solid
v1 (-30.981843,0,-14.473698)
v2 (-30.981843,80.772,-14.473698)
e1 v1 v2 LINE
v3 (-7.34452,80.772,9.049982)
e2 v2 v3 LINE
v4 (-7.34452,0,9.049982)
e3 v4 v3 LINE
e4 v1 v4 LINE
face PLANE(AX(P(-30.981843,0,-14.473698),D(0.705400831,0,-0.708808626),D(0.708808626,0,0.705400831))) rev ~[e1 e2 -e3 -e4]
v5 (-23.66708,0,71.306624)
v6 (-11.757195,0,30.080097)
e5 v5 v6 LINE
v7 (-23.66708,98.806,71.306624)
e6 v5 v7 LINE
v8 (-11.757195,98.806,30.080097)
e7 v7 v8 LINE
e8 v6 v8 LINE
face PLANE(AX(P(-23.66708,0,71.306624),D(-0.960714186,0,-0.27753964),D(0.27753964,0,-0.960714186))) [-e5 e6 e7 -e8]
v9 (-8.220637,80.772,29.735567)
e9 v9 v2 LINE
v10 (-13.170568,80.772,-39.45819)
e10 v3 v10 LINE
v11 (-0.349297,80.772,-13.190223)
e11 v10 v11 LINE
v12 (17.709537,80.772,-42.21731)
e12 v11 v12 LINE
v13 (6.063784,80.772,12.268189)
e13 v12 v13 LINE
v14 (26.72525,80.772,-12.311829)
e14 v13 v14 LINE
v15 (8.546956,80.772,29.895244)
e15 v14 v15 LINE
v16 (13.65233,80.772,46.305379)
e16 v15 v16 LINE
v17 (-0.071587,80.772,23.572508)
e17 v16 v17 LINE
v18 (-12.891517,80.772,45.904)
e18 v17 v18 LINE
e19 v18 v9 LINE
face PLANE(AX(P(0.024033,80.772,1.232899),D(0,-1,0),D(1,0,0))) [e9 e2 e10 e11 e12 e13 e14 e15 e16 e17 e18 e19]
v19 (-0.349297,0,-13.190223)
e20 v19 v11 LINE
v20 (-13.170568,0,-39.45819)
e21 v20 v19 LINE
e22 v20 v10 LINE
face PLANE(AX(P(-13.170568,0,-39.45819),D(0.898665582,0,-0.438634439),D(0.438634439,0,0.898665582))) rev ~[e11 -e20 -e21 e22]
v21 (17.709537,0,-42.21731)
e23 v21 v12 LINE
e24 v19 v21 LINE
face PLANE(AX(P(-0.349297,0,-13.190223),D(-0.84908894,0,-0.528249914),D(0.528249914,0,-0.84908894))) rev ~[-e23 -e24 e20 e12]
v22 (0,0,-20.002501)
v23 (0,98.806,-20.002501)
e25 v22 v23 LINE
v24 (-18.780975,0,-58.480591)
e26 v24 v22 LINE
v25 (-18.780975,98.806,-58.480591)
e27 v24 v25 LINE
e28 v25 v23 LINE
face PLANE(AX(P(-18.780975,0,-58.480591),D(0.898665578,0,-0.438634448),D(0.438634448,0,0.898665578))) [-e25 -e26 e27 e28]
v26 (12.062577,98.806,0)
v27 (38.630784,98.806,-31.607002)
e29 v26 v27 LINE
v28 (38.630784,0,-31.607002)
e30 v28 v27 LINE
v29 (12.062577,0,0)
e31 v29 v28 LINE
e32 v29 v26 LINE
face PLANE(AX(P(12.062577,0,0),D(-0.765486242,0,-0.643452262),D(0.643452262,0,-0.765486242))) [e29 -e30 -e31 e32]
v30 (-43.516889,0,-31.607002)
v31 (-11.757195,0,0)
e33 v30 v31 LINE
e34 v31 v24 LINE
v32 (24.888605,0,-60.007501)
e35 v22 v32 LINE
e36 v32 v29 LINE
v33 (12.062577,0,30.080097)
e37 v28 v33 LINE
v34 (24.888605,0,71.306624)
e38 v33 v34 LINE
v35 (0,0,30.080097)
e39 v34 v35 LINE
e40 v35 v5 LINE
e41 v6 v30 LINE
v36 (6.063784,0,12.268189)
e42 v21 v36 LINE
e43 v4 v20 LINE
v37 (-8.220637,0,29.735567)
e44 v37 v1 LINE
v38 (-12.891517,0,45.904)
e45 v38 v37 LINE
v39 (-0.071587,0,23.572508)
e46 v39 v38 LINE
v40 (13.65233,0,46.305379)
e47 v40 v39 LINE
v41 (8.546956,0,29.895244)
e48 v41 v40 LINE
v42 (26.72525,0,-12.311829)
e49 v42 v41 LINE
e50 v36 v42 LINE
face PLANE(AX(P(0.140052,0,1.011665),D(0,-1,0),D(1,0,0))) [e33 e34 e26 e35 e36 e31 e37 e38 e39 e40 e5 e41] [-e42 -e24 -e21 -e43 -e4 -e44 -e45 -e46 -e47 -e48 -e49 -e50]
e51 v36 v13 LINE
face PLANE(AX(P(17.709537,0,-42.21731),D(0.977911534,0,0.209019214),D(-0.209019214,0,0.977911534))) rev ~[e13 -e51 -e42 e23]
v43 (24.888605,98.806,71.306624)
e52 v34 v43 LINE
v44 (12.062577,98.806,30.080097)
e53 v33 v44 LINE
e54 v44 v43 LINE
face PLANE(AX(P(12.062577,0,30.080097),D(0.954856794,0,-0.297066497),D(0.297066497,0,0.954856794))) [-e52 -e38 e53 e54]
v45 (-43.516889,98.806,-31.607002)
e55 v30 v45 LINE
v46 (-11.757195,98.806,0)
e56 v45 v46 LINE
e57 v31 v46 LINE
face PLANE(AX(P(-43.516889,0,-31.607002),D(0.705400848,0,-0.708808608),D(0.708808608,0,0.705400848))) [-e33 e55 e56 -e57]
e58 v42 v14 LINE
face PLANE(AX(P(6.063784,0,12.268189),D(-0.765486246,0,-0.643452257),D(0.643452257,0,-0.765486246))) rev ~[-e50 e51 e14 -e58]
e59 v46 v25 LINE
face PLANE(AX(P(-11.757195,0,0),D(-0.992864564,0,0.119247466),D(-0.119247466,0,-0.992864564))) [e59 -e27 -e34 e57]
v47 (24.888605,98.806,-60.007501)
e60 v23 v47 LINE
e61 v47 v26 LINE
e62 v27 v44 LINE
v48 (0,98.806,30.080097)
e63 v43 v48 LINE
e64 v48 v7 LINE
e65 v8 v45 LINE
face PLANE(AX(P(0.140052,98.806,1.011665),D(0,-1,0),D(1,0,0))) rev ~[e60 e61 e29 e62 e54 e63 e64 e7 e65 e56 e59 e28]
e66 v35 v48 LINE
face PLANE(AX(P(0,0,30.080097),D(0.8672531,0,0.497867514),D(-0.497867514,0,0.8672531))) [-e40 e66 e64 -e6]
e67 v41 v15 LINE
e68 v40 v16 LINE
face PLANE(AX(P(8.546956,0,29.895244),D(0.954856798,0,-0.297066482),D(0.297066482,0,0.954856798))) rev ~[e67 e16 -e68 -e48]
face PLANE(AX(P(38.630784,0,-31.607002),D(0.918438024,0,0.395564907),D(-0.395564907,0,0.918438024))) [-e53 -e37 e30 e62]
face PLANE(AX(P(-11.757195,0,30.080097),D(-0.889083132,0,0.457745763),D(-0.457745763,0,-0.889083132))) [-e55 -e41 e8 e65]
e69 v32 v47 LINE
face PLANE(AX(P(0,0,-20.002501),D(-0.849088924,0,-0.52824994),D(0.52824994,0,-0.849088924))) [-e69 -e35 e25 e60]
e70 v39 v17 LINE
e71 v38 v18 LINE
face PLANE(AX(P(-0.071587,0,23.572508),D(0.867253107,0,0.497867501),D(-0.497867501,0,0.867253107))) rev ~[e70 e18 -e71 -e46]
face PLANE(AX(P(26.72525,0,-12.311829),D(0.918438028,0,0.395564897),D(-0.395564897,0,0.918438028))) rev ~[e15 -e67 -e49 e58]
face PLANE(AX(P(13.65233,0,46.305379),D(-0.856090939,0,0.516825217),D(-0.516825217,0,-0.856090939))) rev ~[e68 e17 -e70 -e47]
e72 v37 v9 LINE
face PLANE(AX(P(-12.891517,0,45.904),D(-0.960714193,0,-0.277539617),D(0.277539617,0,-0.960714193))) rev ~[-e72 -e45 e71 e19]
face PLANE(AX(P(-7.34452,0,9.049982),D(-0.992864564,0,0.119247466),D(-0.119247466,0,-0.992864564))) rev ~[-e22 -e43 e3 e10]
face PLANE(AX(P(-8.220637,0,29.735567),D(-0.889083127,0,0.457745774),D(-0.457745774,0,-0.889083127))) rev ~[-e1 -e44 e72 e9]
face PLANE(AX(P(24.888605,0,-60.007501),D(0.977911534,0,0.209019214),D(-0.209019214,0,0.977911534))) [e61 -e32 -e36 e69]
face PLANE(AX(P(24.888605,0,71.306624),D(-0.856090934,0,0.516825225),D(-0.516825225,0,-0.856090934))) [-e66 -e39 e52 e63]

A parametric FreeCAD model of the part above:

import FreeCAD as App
import Part
import Sketcher
from FreeCAD import Vector
Q = App.Units.Quantity

doc = App.newDocument("Part")
body = doc.addObject("PartDesign::Body", "Body")

# Sketch on XZ plane
sketch1 = body.newObject("Sketcher::SketchObject", "Sketch")
sketch1.AttachmentSupport = (doc.getObject("XZ_Plane"), [""])
sketch1.MapMode = "FlatFace"
sketch1.addGeometry([
    Part.LineSegment(Vector(0, -20, 0), Vector(25, -60, 0)),  # 0
    Part.LineSegment(Vector(25, -60, 0), Vector(12, 0, 0)),  # 1
    Part.LineSegment(Vector(12, 0, 0), Vector(39, -32, 0)),  # 2
    Part.LineSegment(Vector(39, -32, 0), Vector(12, 30, 0)),  # 3
    Part.LineSegment(Vector(12, 30, 0), Vector(25, 71, 0)),  # 4
    Part.LineSegment(Vector(25, 71, 0), Vector(0, 30, 0)),  # 5
    Part.LineSegment(Vector(0, 30, 0), Vector(-24, 71, 0)),  # 6
    Part.LineSegment(Vector(-24, 71, 0), Vector(-12, 30, 0)),  # 7
    Part.LineSegment(Vector(-12, 30, 0), Vector(-44, -32, 0)),  # 8
    Part.LineSegment(Vector(-44, -32, 0), Vector(-12, 0, 0)),  # 9
    Part.LineSegment(Vector(-12, 0, 0), Vector(-19, -58, 0)),  # 10
    Part.LineSegment(Vector(-19, -58, 0), Vector(0, -20, 0)),  # 11
], False)
sketch1.addConstraint([
    Sketcher.Constraint("Coincident", 0, 2, 1, 1),
    Sketcher.Constraint("Coincident", 1, 2, 2, 1),
    Sketcher.Constraint("Coincident", 2, 2, 3, 1),
    Sketcher.Constraint("Coincident", 3, 2, 4, 1),
    Sketcher.Constraint("Coincident", 4, 2, 5, 1),
    Sketcher.Constraint("Coincident", 5, 2, 6, 1),
    Sketcher.Constraint("Coincident", 6, 2, 7, 1),
    Sketcher.Constraint("Coincident", 7, 2, 8, 1),
    Sketcher.Constraint("Coincident", 8, 2, 9, 1),
    Sketcher.Constraint("Coincident", 9, 2, 10, 1),
    Sketcher.Constraint("Coincident", 10, 2, 11, 1),
    Sketcher.Constraint("Coincident", 11, 2, 0, 1),
    Sketcher.Constraint("PointOnObject", 1, 2, -1),
    Sketcher.Constraint("PointOnObject", 5, 2, -2),
    Sketcher.Constraint("PointOnObject", 9, 2, -1),
    Sketcher.Constraint("PointOnObject", 11, 2, -2),
    Sketcher.Constraint("Horizontal", 3, 2, 5, 2),
    Sketcher.Constraint("Horizontal", 4, 2, 6, 2),
    Sketcher.Constraint("Horizontal", 5, 2, 7, 2),
    Sketcher.Constraint("Horizontal", 2, 2, 8, 2),
    Sketcher.Constraint("Vertical", 1, 2, 3, 2),
    Sketcher.Constraint("Vertical", 0, 2, 4, 2),
    Sketcher.Constraint("Vertical", 7, 2, 9, 2),
    Sketcher.Constraint("DistanceY", 0, 2, -1, 1, Q("2.3625 in")),
    Sketcher.Constraint("DistanceY", 11, 2, -1, 1, Q("0.7875 in")),
    Sketcher.Constraint("Distance", 2, Q("41.290098 mm")),
    Sketcher.Constraint("DistanceY", 0, 2, 2, 2, Q("28.400499 mm")),
    Sketcher.Constraint("DistanceY", 2, 2, 3, 2, Q("61.687099 mm")),
    Sketcher.Constraint("DistanceX", 7, 2, 4, 2, Q("36.6458 mm")),
    Sketcher.Constraint("Distance", 9, Q("44.807151 mm")),
    Sketcher.Constraint("DistanceX", 6, 2, -1, 1, Q("23.66708 mm")),
    Sketcher.Constraint("DistanceX", 8, 2, -1, 1, Q("43.516889 mm")),
    Sketcher.Constraint("DistanceY", 10, 2, -1, 1, Q("58.480591 mm")),
    Sketcher.Constraint("DistanceX", 0, 2, 2, 2, Q("13.742179 mm")),
    Sketcher.Constraint("DistanceX", 10, 2, 0, 2, Q("43.66958 mm")),
    Sketcher.Constraint("Distance", 4, Q("43.175613 mm")),
])
pad1 = body.newObject("PartDesign::Pad", "Pad")
pad1.Profile = sketch1
pad1.Length = Q("3.89 in")
pad1.Reversed = True

# Sketch on XZ plane
sketch2 = body.newObject("Sketcher::SketchObject", "Sketch001")
sketch2.AttachmentSupport = (doc.getObject("XZ_Plane"), [""])
sketch2.MapMode = "FlatFace"
sketch2.addGeometry([
    Part.LineSegment(Vector(9, 30, 0), Vector(14, 46, 0)),  # 0
    Part.LineSegment(Vector(14, 46, 0), Vector(0, 24, 0)),  # 1
    Part.LineSegment(Vector(0, 24, 0), Vector(-13, 46, 0)),  # 2
    Part.LineSegment(Vector(-13, 46, 0), Vector(-8, 30, 0)),  # 3
    Part.LineSegment(Vector(-8, 30, 0), Vector(-31, -14, 0)),  # 4
    Part.LineSegment(Vector(-31, -14, 0), Vector(-7, 9, 0)),  # 5
    Part.LineSegment(Vector(-7, 9, 0), Vector(-13, -39, 0)),  # 6
    Part.LineSegment(Vector(-13, -39, 0), Vector(0, -13, 0)),  # 7
    Part.LineSegment(Vector(0, -13, 0), Vector(18, -42, 0)),  # 8
    Part.LineSegment(Vector(18, -42, 0), Vector(6, 12, 0)),  # 9
    Part.LineSegment(Vector(6, 12, 0), Vector(27, -12, 0)),  # 10
    Part.LineSegment(Vector(27, -12, 0), Vector(9, 30, 0)),  # 11
], False)
sketch2.addConstraint([
    Sketcher.Constraint("Coincident", 0, 2, 1, 1),
    Sketcher.Constraint("Coincident", 1, 2, 2, 1),
    Sketcher.Constraint("Coincident", 2, 2, 3, 1),
    Sketcher.Constraint("Coincident", 3, 2, 4, 1),
    Sketcher.Constraint("Coincident", 4, 2, 5, 1),
    Sketcher.Constraint("Coincident", 5, 2, 6, 1),
    Sketcher.Constraint("Coincident", 6, 2, 7, 1),
    Sketcher.Constraint("Coincident", 7, 2, 8, 1),
    Sketcher.Constraint("Coincident", 8, 2, 9, 1),
    Sketcher.Constraint("Coincident", 9, 2, 10, 1),
    Sketcher.Constraint("Coincident", 10, 2, 11, 1),
    Sketcher.Constraint("Coincident", 11, 2, 0, 1),
    Sketcher.Constraint("DistanceY", 7, 2, -1, 1, Q("0.5193001 in")),
    Sketcher.Constraint("DistanceY", -1, 1, 2, 2, Q("45.904 mm")),
    Sketcher.Constraint("DistanceY", 4, 2, -1, 1, Q("14.473698 mm")),
    Sketcher.Constraint("Distance", 1, Q("26.554271 mm")),
    Sketcher.Constraint("Distance", 5, Q("33.347962 mm")),
    Sketcher.Constraint("Distance", 7, Q("29.229969 mm")),
    Sketcher.Constraint("DistanceX", -1, 1, 0, 2, Q("13.65233 mm")),
    Sketcher.Constraint("DistanceY", -1, 1, 0, 2, Q("46.305379 mm")),
    Sketcher.Constraint("DistanceX", 5, 2, -1, 1, Q("7.34452 mm")),
    Sketcher.Constraint("DistanceY", 6, 2, -1, 1, Q("39.45819 mm")),
    Sketcher.Constraint("DistanceY", 8, 2, -1, 1, Q("42.21731 mm")),
    Sketcher.Constraint("DistanceY", -1, 1, 9, 2, Q("12.268189 mm")),
    Sketcher.Constraint("DistanceX", -1, 1, 10, 2, Q("26.72525 mm")),
    Sketcher.Constraint("DistanceY", 10, 2, -1, 1, Q("12.311829 mm")),
    Sketcher.Constraint("DistanceY", 1, 2, 0, 2, Q("22.732871 mm")),
    Sketcher.Constraint("DistanceX", 2, 2, 1, 2, Q("12.81993 mm")),
    Sketcher.Constraint("DistanceX", 3, 2, 1, 2, Q("8.14905 mm")),
    Sketcher.Constraint("DistanceY", 1, 2, 3, 2, Q("6.163059 mm")),
    Sketcher.Constraint("DistanceY", 4, 2, 5, 2, Q("23.52368 mm")),
    Sketcher.Constraint("DistanceX", 6, 2, 1, 2, Q("13.098981 mm")),
    Sketcher.Constraint("DistanceX", 4, 2, 8, 2, Q("48.69138 mm")),
    Sketcher.Constraint("DistanceX", 1, 2, 9, 2, Q("6.135371 mm")),
    Sketcher.Constraint("DistanceX", 9, 2, 11, 2, Q("2.483172 mm")),
    Sketcher.Constraint("Distance", 0, Q("17.185964 mm")),
])
pocket1 = body.newObject("PartDesign::Pocket", "Pocket")
pocket1.Profile = sketch2
pocket1.Length = Q("3.18 in")

doc.recompute()
